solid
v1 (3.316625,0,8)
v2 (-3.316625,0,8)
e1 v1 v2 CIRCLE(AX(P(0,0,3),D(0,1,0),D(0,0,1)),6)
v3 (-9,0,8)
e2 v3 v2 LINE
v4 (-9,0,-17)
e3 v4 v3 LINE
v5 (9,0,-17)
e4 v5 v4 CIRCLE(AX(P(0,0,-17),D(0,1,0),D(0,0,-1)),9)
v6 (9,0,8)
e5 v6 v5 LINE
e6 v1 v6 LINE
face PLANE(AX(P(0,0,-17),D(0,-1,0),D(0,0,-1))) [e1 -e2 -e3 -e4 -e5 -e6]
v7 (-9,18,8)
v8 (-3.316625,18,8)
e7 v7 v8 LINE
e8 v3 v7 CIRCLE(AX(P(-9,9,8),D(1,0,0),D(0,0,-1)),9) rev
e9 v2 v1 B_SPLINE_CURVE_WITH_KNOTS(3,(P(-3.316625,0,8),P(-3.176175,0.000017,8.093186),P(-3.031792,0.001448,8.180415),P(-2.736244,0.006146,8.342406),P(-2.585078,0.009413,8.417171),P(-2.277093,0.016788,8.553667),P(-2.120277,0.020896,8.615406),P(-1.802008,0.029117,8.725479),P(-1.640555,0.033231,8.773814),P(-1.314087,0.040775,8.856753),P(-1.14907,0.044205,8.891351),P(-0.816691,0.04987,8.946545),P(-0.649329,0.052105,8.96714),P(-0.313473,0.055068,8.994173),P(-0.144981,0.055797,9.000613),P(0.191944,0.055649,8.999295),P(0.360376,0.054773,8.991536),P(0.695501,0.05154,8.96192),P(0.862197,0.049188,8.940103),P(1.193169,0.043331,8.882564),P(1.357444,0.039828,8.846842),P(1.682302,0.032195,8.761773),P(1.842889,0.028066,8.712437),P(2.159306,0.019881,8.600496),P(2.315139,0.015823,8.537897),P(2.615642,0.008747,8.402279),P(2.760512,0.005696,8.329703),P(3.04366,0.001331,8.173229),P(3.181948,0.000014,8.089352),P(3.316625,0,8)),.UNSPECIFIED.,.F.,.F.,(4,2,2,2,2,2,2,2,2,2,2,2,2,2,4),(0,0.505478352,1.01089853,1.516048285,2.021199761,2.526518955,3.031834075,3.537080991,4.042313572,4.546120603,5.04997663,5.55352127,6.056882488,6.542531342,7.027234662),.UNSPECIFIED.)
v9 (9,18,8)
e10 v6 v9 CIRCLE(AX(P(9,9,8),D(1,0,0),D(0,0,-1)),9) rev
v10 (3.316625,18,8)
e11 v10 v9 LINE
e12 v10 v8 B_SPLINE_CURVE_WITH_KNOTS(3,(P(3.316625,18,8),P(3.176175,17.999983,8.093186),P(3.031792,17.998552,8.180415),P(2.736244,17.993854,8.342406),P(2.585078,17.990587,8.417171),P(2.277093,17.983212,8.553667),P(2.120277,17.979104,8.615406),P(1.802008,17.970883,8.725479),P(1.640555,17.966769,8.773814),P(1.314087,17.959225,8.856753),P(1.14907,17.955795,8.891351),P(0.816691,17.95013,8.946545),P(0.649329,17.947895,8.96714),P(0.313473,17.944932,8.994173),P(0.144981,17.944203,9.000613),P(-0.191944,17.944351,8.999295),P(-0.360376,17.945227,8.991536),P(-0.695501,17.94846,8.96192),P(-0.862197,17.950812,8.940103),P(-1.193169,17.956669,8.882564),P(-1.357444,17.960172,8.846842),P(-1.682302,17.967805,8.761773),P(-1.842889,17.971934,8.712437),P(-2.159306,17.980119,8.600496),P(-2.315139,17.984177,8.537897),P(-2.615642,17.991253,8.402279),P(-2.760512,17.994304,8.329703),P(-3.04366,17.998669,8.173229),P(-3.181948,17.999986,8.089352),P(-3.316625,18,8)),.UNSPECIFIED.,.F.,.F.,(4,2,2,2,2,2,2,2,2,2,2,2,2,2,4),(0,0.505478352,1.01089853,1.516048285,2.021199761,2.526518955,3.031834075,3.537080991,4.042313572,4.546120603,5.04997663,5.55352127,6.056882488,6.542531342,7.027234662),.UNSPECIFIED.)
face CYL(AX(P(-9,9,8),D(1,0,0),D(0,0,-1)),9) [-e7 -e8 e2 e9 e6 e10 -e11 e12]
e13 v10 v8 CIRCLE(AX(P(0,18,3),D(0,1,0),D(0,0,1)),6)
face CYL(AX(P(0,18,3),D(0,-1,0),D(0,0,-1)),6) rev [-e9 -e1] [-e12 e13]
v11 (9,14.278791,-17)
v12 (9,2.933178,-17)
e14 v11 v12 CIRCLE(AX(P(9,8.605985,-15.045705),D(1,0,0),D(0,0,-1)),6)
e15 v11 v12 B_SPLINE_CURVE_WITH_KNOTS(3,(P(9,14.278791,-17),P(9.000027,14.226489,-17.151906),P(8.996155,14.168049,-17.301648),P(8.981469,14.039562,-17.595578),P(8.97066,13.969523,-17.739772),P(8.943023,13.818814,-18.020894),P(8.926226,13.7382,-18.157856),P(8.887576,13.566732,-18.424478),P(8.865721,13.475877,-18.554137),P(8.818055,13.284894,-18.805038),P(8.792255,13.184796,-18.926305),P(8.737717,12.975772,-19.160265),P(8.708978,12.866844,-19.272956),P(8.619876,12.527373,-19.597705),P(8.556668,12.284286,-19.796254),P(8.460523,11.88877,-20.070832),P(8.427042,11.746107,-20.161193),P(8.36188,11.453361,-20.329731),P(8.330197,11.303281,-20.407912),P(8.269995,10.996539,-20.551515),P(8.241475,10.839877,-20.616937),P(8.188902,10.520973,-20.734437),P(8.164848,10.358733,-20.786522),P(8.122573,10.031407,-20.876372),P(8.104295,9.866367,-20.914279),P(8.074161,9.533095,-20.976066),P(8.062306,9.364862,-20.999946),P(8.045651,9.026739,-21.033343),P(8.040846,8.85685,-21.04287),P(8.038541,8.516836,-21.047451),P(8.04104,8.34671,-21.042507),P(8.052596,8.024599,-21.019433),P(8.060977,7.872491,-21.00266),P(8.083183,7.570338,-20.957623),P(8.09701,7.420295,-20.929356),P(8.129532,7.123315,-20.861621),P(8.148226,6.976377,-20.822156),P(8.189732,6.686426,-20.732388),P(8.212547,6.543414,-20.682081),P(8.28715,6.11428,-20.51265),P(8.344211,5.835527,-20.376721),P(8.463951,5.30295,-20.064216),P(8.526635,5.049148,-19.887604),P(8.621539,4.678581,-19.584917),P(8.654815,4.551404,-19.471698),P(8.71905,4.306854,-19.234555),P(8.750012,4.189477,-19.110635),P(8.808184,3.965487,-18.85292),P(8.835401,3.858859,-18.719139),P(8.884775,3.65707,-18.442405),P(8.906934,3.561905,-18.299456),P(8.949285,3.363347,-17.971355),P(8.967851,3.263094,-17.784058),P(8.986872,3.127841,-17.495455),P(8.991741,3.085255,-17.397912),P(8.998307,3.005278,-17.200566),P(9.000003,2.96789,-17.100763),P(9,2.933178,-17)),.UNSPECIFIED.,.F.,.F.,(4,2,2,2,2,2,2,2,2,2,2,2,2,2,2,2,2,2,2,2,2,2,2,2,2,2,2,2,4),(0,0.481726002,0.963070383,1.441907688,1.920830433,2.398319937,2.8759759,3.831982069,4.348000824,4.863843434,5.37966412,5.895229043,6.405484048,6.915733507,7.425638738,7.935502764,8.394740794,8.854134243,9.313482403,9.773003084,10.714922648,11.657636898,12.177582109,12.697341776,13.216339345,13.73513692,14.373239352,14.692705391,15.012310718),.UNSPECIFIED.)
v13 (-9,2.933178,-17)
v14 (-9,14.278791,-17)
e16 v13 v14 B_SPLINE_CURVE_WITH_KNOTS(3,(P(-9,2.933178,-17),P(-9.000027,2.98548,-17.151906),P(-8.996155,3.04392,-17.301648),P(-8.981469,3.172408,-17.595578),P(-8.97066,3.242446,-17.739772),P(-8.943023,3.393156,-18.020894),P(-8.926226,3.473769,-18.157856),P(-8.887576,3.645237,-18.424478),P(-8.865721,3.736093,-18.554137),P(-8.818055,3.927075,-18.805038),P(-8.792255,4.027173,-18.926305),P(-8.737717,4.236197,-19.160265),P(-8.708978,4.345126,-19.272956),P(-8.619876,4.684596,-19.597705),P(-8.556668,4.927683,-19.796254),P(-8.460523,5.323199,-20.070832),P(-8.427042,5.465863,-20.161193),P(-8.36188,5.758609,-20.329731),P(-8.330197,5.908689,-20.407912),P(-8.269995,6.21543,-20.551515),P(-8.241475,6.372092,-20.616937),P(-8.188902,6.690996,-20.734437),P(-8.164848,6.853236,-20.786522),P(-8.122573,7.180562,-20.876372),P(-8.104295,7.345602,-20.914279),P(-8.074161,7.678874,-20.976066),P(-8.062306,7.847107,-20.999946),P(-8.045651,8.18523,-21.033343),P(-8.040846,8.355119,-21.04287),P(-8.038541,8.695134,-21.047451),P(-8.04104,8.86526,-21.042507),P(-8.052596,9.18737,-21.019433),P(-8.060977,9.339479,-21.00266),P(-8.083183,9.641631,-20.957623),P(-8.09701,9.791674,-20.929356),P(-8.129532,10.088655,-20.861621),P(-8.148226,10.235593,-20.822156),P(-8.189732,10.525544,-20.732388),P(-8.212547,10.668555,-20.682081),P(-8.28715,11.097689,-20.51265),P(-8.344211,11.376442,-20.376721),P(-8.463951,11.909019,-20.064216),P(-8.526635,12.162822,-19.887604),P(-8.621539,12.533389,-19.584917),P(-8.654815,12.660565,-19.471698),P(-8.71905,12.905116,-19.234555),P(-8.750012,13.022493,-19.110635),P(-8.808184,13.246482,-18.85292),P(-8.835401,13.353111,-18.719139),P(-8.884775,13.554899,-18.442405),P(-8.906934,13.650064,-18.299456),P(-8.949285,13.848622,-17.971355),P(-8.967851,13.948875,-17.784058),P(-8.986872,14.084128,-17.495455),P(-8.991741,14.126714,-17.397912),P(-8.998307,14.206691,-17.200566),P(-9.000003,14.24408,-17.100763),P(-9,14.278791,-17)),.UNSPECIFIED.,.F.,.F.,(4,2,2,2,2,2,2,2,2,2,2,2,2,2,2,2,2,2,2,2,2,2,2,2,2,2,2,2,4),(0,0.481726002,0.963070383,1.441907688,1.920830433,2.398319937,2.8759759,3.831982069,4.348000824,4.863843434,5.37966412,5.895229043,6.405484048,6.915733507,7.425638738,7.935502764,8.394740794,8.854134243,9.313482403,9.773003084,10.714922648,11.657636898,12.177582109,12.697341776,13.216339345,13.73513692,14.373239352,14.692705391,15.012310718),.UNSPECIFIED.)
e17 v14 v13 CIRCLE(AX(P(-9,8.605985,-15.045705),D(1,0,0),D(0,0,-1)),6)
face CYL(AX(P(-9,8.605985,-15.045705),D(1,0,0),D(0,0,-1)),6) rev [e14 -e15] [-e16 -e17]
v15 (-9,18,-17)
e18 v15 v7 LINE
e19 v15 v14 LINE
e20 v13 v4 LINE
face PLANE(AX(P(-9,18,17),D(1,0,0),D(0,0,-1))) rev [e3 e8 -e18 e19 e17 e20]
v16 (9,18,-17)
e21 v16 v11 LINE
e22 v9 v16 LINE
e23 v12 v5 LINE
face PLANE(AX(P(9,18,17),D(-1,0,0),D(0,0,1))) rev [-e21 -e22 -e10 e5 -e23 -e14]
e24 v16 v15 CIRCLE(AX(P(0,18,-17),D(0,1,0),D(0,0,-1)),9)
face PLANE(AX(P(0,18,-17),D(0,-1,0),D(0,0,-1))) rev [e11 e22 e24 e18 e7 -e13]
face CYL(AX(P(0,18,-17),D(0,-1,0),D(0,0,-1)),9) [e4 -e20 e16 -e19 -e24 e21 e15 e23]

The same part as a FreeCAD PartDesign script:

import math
import FreeCAD as App
import Part
import Sketcher
from FreeCAD import Vector

doc = App.newDocument("Part")
body = doc.addObject("PartDesign::Body", "Body")

sketch1 = body.newObject("Sketcher::SketchObject", "Sketch")
sketch1.AttachmentSupport = (doc.getObject("XZ_Plane"), [""])
sketch1.MapMode = "FlatFace"
sketch1.addGeometry([
    Part.LineSegment(Vector(-9, 17, 0), Vector(9, 17, 0)),
    Part.LineSegment(Vector(9, 17, 0), Vector(9, -17, 0)),
    Part.ArcOfCircle(Part.Circle(Vector(0, -17, 0), Vector(0, 0, 1), 9), math.radians(180), math.radians(360)),
    Part.LineSegment(Vector(-9, -17, 0), Vector(-9, 17, 0)),
    Part.Circle(Vector(0, 3, 0), Vector(0, 0, 1), 6),
], False)
sketch1.addConstraint([
    Sketcher.Constraint("Coincident", 0, 2, 1, 1),
    Sketcher.Constraint("Tangent", 1, 2, 2, 2),
    Sketcher.Constraint("Tangent", 2, 1, 3, 1),
    Sketcher.Constraint("Coincident", 3, 2, 0, 1),
    Sketcher.Constraint("Horizontal", 0),
    Sketcher.Constraint("Vertical", 1),
    Sketcher.Constraint("Vertical", 3),
    Sketcher.Constraint("Symmetric", 0, 2, 2, 1, -1, 1),
    Sketcher.Constraint("PointOnObject", 4, 3, -2),
    Sketcher.Constraint("Diameter", 4, 12.0),
    Sketcher.Constraint("Radius", 2, 9.0),
    Sketcher.Constraint("DistanceY", 1, 2, 1, 1, 34.0),
    Sketcher.Constraint("DistanceY", -1, 1, 4, 3, 3.0),
])
pad1 = body.newObject("PartDesign::Pad", "Pad")
pad1.Profile = sketch1
pad1.Length = 18
pad1.Reversed = True

sketch2 = body.newObject("Sketcher::SketchObject", "Sketch001")
sketch2.AttachmentSupport = (doc.getObject("YZ_Plane"), [""])
sketch2.MapMode = "FlatFace"
sketch2.AttachmentOffset = App.Placement(Vector(0, 0, 9), App.Rotation())
sketch2.addGeometry([
    Part.ArcOfCircle(Part.Circle(Vector(9, 8, 0), Vector(0, 0, 1), 9), math.radians(90), math.radians(180)),
    Part.LineSegment(Vector(9, 17, 0), Vector(0, 17, 0)),
    Part.LineSegment(Vector(0, 17, 0), Vector(0, 8, 0)),
    Part.ArcOfCircle(Part.Circle(Vector(9, 8, 0), Vector(0, 0, 1), 9), math.radians(0), math.radians(90)),
    Part.LineSegment(Vector(18, 8, 0), Vector(18, 17, 0)),
    Part.LineSegment(Vector(18, 17, 0), Vector(9, 17, 0)),
    Part.ArcOfCircle(Part.Circle(Vector(8.605985, -15.045705, 0), Vector(0, 0, 1), 6), math.radians(-19.008947), math.radians(199.008947)),
    Part.ArcOfCircle(Part.Circle(Vector(8.605985, -15.045705, 0), Vector(0, 0, 1), 6), math.radians(-160.991053), math.radians(-90)),
    Part.ArcOfCircle(Part.Circle(Vector(8.605985, -15.045705, 0), Vector(0, 0, 1), 6), math.radians(-90), math.radians(-19.008947)),
], False)
sketch2.addConstraint([
    Sketcher.Constraint("Tangent", 0, 1, 1, 1),
    Sketcher.Constraint("Coincident", 1, 2, 2, 1),
    Sketcher.Constraint("Tangent", 2, 2, 0, 2),
    Sketcher.Constraint("Tangent", 3, 1, 4, 1),
    Sketcher.Constraint("Coincident", 4, 2, 5, 1),
    Sketcher.Constraint("Tangent", 5, 2, 3, 2),
    Sketcher.Constraint("Tangent", 6, 2, 7, 1),
    Sketcher.Constraint("Tangent", 7, 2, 8, 1),
    Sketcher.Constraint("Tangent", 8, 2, 6, 1),
    Sketcher.Constraint("Horizontal", 1),
    Sketcher.Constraint("Vertical", 2),
    Sketcher.Constraint("Vertical", 4),
    Sketcher.Constraint("Horizontal", 5),
    Sketcher.Constraint("Coincident", 3, 3, 0, 3),
    Sketcher.Constraint("Equal", 0, 3),
    Sketcher.Constraint("PointOnObject", 1, 2, -2),
    Sketcher.Constraint("Horizontal", 6, 2, 8, 2),
    Sketcher.Constraint("Vertical", 8, 3, 7, 2),
    Sketcher.Constraint("Radius", 0, 9.0),
    Sketcher.Constraint("Radius", 6, 6.0),
    Sketcher.Constraint("DistanceY", -1, 1, 0, 3, 8.0),
    Sketcher.Constraint("DistanceY", 6, 2, -1, 1, 17.0),
    Sketcher.Constraint("DistanceX", -1, 1, 6, 2, 2.933178),
    Sketcher.Constraint("DistanceX", -1, 1, 8, 2, 14.278791),
])
pocket1 = body.newObject("PartDesign::Pocket", "Pocket")
pocket1.Profile = sketch2
pocket1.Length = 18

doc.recompute()
